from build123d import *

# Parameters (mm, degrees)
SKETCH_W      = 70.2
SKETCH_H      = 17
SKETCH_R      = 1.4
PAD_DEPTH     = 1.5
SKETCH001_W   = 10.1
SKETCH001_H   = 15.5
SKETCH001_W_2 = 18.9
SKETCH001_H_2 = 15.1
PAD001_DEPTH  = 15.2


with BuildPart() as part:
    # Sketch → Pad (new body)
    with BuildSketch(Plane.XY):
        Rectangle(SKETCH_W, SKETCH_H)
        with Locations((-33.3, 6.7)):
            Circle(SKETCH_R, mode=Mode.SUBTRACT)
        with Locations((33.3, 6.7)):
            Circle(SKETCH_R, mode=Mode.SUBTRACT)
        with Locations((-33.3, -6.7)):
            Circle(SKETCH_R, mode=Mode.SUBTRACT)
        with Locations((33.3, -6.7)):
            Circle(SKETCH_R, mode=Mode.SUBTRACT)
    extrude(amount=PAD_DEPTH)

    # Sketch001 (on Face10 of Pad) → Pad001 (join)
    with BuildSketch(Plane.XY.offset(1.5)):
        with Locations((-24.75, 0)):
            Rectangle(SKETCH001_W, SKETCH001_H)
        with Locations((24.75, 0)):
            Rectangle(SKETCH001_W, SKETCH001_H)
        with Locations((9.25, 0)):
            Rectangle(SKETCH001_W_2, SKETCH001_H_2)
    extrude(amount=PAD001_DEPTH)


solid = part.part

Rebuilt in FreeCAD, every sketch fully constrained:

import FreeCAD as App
import Part
import Sketcher
from FreeCAD import Vector

doc = App.newDocument("Part")
body = doc.addObject("PartDesign::Body", "Body")

sketch1 = body.newObject("Sketcher::SketchObject", "Sketch")
sketch1.AttachmentSupport = (doc.getObject("XY_Plane"), [""])
sketch1.MapMode = "FlatFace"
sketch1.addGeometry([
    Part.LineSegment(Vector(-35.1, 8.5, 0), Vector(-35.1, -8.5, 0)),
    Part.LineSegment(Vector(-35.1, -8.5, 0), Vector(35.1, -8.5, 0)),
    Part.LineSegment(Vector(35.1, -8.5, 0), Vector(35.1, 8.5, 0)),
    Part.LineSegment(Vector(35.1, 8.5, 0), Vector(-35.1, 8.5, 0)),
    Part.Circle(Vector(-33.3, -6.7, 0), Vector(0, 0, 1), 1.4),
    Part.Circle(Vector(33.3, -6.7, 0), Vector(0, 0, 1), 1.4),
    Part.Circle(Vector(-33.3, 6.7, 0), Vector(0, 0, 1), 1.4),
    Part.Circle(Vector(33.3, 6.7, 0), Vector(0, 0, 1), 1.4),
], False)
sketch1.addConstraint([
    Sketcher.Constraint("Coincident", 0, 2, 1, 1),
    Sketcher.Constraint("Coincident", 1, 2, 2, 1),
    Sketcher.Constraint("Coincident", 2, 2, 3, 1),
    Sketcher.Constraint("Coincident", 3, 2, 0, 1),
    Sketcher.Constraint("Vertical", 0),
    Sketcher.Constraint("Horizontal", 1),
    Sketcher.Constraint("Vertical", 2),
    Sketcher.Constraint("Horizontal", 3),
    Sketcher.Constraint("Equal", 4, 5),
    Sketcher.Constraint("Equal", 5, 6),
    Sketcher.Constraint("Equal", 6, 7),
    Sketcher.Constraint("Symmetric", 5, 3, 6, 3, -1, 1),
    Sketcher.Constraint("Symmetric", 4, 3, 7, 3, -1, 1),
    Sketcher.Constraint("Symmetric", 0, 2, 2, 2, -1, 1),
    Sketcher.Constraint("Symmetric", 4, 3, 5, 3, -2),
    Sketcher.Constraint("Diameter", 4, 2.8),
    Sketcher.Constraint("DistanceY", 0, 2, 0, 1, 17.0),
    Sketcher.Constraint("DistanceX", 1, 1, 1, 2, 70.2),
    Sketcher.Constraint("DistanceX", 4, 3, -1, 1, 33.3),
    Sketcher.Constraint("DistanceY", 4, 3, -1, 1, 6.7),
])
pad1 = body.newObject("PartDesign::Pad", "Pad")
pad1.Profile = sketch1
pad1.Length = 1.5

sketch2 = body.newObject("Sketcher::SketchObject", "Sketch001")
sketch2.AttachmentSupport = (doc.getObject("XY_Plane"), [""])
sketch2.MapMode = "FlatFace"
sketch2.AttachmentOffset = App.Placement(Vector(0, 0, 1.5), App.Rotation())
sketch2.addGeometry([
    Part.LineSegment(Vector(-30, 8, 0), Vector(-30, -8, 0)),
    Part.LineSegment(Vector(-30, -8, 0), Vector(-20, -8, 0)),
    Part.LineSegment(Vector(-20, -8, 0), Vector(-20, 8, 0)),
    Part.LineSegment(Vector(-20, 8, 0), Vector(-30, 8, 0)),
    Part.LineSegment(Vector(20, 8, 0), Vector(20, -8, 0)),
    Part.LineSegment(Vector(20, -8, 0), Vector(30, -8, 0)),
    Part.LineSegment(Vector(30, -8, 0), Vector(30, 8, 0)),
    Part.LineSegment(Vector(30, 8, 0), Vector(20, 8, 0)),
    Part.LineSegment(Vector(0, 8, 0), Vector(0, -8, 0)),
    Part.LineSegment(Vector(0, -8, 0), Vector(19, -8, 0)),
    Part.LineSegment(Vector(19, -8, 0), Vector(19, 8, 0)),
    Part.LineSegment(Vector(19, 8, 0), Vector(0, 8, 0)),
], False)
sketch2.addConstraint([
    Sketcher.Constraint("Coincident", 0, 2, 1, 1),
    Sketcher.Constraint("Coincident", 1, 2, 2, 1),
    Sketcher.Constraint("Coincident", 2, 2, 3, 1),
    Sketcher.Constraint("Coincident", 3, 2, 0, 1),
    Sketcher.Constraint("Coincident", 4, 2, 5, 1),
    Sketcher.Constraint("Coincident", 5, 2, 6, 1),
    Sketcher.Constraint("Coincident", 6, 2, 7, 1),
    Sketcher.Constraint("Coincident", 7, 2, 4, 1),
    Sketcher.Constraint("Coincident", 8, 2, 9, 1),
    Sketcher.Constraint("Coincident", 9, 2, 10, 1),
    Sketcher.Constraint("Coincident", 10, 2, 11, 1),
    Sketcher.Constraint("Coincident", 11, 2, 8, 1),
    Sketcher.Constraint("Vertical", 0),
    Sketcher.Constraint("Horizontal", 1),
    Sketcher.Constraint("Vertical", 2),
    Sketcher.Constraint("Horizontal", 3),
    Sketcher.Constraint("Vertical", 4),
    Sketcher.Constraint("Horizontal", 5),
    Sketcher.Constraint("Vertical", 6),
    Sketcher.Constraint("Horizontal", 7),
    Sketcher.Constraint("Vertical", 8),
    Sketcher.Constraint("Horizontal", 9),
    Sketcher.Constraint("Vertical", 10),
    Sketcher.Constraint("Horizontal", 11),
    Sketcher.Constraint("Symmetric", 2, 2, 4, 2, -1, 1),
    Sketcher.Constraint("Symmetric", 0, 2, 6, 2, -1, 1),
    Sketcher.Constraint("Horizontal", 1, 2, 4, 2),
    Sketcher.Constraint("DistanceX", 1, 1, 1, 2, 10.1),
    Sketcher.Constraint("DistanceX", 9, 1, 9, 2, 18.9),
    Sketcher.Constraint("DistanceY", 0, 2, 0, 1, 15.5),
    Sketcher.Constraint("DistanceY", 8, 2, 8, 1, 15.1),
    Sketcher.Constraint("DistanceX", 9, 2, 4, 2, 1.0),
    Sketcher.Constraint("DistanceX", 0, 2, -1, 1, 29.8),
    Sketcher.Constraint("DistanceY", 1, 2, 8, 2, 0.2),
])
pad2 = body.newObject("PartDesign::Pad", "Pad001")
pad2.Profile = sketch2
pad2.Length = 15.2

doc.recompute()
